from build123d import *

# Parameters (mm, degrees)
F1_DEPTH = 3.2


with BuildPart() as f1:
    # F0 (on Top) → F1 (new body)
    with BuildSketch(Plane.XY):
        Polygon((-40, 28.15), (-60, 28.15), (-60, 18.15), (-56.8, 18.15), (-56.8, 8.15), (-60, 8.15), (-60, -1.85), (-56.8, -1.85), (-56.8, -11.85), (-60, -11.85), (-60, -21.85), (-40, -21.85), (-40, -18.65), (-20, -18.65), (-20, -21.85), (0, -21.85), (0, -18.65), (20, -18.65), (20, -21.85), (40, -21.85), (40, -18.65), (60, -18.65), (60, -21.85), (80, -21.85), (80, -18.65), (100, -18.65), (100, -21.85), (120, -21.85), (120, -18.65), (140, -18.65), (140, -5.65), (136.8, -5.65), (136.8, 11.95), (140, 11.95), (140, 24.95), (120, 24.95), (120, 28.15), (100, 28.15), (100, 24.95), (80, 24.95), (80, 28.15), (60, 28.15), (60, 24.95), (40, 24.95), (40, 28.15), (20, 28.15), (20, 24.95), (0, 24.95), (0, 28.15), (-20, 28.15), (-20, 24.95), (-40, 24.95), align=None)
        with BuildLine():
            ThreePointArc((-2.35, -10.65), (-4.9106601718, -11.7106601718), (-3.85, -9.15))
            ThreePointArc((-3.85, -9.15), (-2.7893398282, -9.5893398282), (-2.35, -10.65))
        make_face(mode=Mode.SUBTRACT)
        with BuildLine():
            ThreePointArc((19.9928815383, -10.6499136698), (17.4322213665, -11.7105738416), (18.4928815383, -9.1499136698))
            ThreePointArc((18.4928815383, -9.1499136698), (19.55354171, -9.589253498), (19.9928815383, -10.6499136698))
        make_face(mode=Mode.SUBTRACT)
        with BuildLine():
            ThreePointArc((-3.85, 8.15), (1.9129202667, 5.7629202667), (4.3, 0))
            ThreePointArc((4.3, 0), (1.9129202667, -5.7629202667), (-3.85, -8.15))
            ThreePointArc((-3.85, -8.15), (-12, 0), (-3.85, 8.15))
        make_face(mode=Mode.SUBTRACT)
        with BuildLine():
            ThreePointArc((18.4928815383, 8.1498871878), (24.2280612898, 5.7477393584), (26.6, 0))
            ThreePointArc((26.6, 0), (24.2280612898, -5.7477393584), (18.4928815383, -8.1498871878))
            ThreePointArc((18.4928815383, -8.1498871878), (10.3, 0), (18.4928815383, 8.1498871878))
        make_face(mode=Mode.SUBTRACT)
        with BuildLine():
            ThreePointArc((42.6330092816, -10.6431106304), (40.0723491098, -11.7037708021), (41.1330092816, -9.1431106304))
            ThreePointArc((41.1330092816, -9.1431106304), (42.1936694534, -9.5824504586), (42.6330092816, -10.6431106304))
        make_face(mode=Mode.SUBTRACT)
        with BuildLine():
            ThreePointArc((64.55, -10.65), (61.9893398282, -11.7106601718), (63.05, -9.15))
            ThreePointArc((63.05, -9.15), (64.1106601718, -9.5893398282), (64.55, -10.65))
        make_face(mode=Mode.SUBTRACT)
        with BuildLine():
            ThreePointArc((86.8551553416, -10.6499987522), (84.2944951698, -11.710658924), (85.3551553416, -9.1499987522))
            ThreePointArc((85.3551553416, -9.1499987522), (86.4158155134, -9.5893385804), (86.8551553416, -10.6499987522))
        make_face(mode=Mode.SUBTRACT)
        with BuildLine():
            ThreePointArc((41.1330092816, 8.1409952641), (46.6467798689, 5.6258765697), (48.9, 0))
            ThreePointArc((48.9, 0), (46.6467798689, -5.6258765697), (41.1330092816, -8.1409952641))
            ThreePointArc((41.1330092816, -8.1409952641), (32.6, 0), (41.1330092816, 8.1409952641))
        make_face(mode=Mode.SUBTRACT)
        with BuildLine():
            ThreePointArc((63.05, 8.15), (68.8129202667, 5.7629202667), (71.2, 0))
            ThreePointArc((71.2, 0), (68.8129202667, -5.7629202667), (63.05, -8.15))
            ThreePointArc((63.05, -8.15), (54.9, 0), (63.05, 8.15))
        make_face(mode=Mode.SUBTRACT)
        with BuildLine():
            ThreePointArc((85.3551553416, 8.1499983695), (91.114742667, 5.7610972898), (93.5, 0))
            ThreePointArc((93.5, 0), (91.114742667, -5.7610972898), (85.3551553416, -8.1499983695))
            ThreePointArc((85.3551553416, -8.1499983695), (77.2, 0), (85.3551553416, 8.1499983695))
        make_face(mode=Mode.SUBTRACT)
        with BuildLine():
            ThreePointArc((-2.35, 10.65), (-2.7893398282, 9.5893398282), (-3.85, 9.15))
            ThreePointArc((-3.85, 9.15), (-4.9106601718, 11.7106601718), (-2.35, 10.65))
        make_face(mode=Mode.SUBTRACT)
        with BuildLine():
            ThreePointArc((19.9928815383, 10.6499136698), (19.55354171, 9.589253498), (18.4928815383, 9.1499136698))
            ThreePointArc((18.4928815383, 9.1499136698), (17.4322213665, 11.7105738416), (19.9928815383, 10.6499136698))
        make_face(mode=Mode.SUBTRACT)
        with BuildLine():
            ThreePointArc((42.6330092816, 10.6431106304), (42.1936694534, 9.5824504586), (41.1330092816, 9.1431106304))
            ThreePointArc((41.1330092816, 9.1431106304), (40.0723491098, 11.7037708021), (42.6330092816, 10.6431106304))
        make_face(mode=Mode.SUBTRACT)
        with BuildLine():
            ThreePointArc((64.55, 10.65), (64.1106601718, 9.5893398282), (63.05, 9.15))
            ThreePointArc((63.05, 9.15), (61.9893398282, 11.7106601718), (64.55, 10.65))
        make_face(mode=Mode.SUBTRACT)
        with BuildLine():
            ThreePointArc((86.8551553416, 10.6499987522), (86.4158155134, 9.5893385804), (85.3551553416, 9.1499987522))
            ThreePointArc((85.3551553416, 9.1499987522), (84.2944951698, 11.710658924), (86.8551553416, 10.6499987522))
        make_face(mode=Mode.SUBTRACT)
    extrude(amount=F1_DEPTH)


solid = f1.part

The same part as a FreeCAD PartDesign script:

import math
import FreeCAD as App
import Part
import Sketcher
from FreeCAD import Vector


def add_polygon(sketch, points):
    """Adds a closed chain of lines whose ends are joined by coincident constraints."""
    first, n = sketch.GeometryCount, len(points)
    for a, b in zip(points, points[1:] + points[:1]):
        sketch.addGeometry(Part.LineSegment(App.Vector(*a, 0), App.Vector(*b, 0)), False)
    for i in range(n):
        sketch.addConstraint(Sketcher.Constraint("Coincident", first + i, 2, first + (i + 1) % n, 1))

doc = App.newDocument("Part")
body = doc.addObject("PartDesign::Body", "Body")

# Sketch on XY plane
sketch1 = body.newObject("Sketcher::SketchObject", "Sketch")
sketch1.AttachmentSupport = (doc.getObject("XY_Plane"), [""])
sketch1.MapMode = "FlatFace"
add_polygon(sketch1, [(-40, 28.15), (-60, 28.15), (-60, 18.15), (-56.8, 18.15), (-56.8, 8.15), (-60, 8.15), (-60, -1.85), (-56.8, -1.85), (-56.8, -11.85), (-60, -11.85), (-60, -21.85), (-40, -21.85), (-40, -18.65), (-20, -18.65), (-20, -21.85), (0, -21.85), (0, -18.65), (20, -18.65), (20, -21.85), (40, -21.85), (40, -18.65), (60, -18.65), (60, -21.85), (80, -21.85), (80, -18.65), (100, -18.65), (100, -21.85), (120, -21.85), (120, -18.65), (140, -18.65), (140, -5.65), (136.8, -5.65), (136.8, 11.95), (140, 11.95), (140, 24.95), (120, 24.95), (120, 28.15), (100, 28.15), (100, 24.95), (80, 24.95), (80, 28.15), (60, 28.15), (60, 24.95), (40, 24.95), (40, 28.15), (20, 28.15), (20, 24.95), (0, 24.95), (0, 28.15), (-20, 28.15), (-20, 24.95), (-40, 24.95)])  # lines 0-51
sketch1.addGeometry(Part.ArcOfCircle(Part.Circle(Vector(-3.85, -10.65, 0), Vector(0, 0, 1), 1.5), math.radians(0), math.radians(90)), False)  # 52
sketch1.addGeometry(Part.ArcOfCircle(Part.Circle(Vector(-3.85, -10.65, 0), Vector(0, 0, 1), 1.5), math.radians(90), math.radians(360)), False)  # 53
sketch1.addGeometry(Part.ArcOfCircle(Part.Circle(Vector(18.492882, -10.649914, 0), Vector(0, 0, 1), 1.5), math.radians(0), math.radians(90)), False)  # 54
sketch1.addGeometry(Part.ArcOfCircle(Part.Circle(Vector(18.492882, -10.649914, 0), Vector(0, 0, 1), 1.5), math.radians(90), math.radians(360)), False)  # 55
sketch1.addGeometry(Part.ArcOfCircle(Part.Circle(Vector(41.133009, -10.643111, 0), Vector(0, 0, 1), 1.5), math.radians(0), math.radians(90)), False)  # 56
sketch1.addGeometry(Part.ArcOfCircle(Part.Circle(Vector(41.133009, -10.643111, 0), Vector(0, 0, 1), 1.5), math.radians(90), math.radians(360)), False)  # 57
sketch1.addGeometry(Part.ArcOfCircle(Part.Circle(Vector(63.05, -10.65, 0), Vector(0, 0, 1), 1.5), math.radians(0), math.radians(90)), False)  # 58
sketch1.addGeometry(Part.ArcOfCircle(Part.Circle(Vector(63.05, -10.65, 0), Vector(0, 0, 1), 1.5), math.radians(90), math.radians(360)), False)  # 59
sketch1.addGeometry(Part.ArcOfCircle(Part.Circle(Vector(85.355155, -10.649999, 0), Vector(0, 0, 1), 1.5), math.radians(0), math.radians(90)), False)  # 60
sketch1.addGeometry(Part.ArcOfCircle(Part.Circle(Vector(85.355155, -10.649999, 0), Vector(0, 0, 1), 1.5), math.radians(90), math.radians(360)), False)  # 61
sketch1.addGeometry(Part.ArcOfCircle(Part.Circle(Vector(-3.85, 0, 0), Vector(0, 0, 1), 8.15), math.radians(90), math.radians(270)), False)  # 62
sketch1.addGeometry(Part.ArcOfCircle(Part.Circle(Vector(-3.85, 0, 0), Vector(0, 0, 1), 8.15), math.radians(0), math.radians(90)), False)  # 63
sketch1.addGeometry(Part.ArcOfCircle(Part.Circle(Vector(-3.85, 0, 0), Vector(0, 0, 1), 8.15), math.radians(-90), math.radians(0)), False)  # 64
sketch1.addGeometry(Part.ArcOfCircle(Part.Circle(Vector(18.45, 0, 0), Vector(0, 0, 1), 8.15), math.radians(89.698535), math.radians(270.301465)), False)  # 65
sketch1.addGeometry(Part.ArcOfCircle(Part.Circle(Vector(18.45, 0, 0), Vector(0, 0, 1), 8.15), math.radians(0), math.radians(89.698535)), False)  # 66
sketch1.addGeometry(Part.ArcOfCircle(Part.Circle(Vector(18.45, 0, 0), Vector(0, 0, 1), 8.15), math.radians(-89.698535), math.radians(0)), False)  # 67
sketch1.addGeometry(Part.ArcOfCircle(Part.Circle(Vector(-3.85, 10.65, 0), Vector(0, 0, 1), 1.5), math.radians(0), math.radians(270)), False)  # 68
sketch1.addGeometry(Part.ArcOfCircle(Part.Circle(Vector(-3.85, 10.65, 0), Vector(0, 0, 1), 1.5), math.radians(-90), math.radians(0)), False)  # 69
sketch1.addGeometry(Part.ArcOfCircle(Part.Circle(Vector(18.492882, 10.649914, 0), Vector(0, 0, 1), 1.5), math.radians(0), math.radians(270)), False)  # 70
sketch1.addGeometry(Part.ArcOfCircle(Part.Circle(Vector(18.492882, 10.649914, 0), Vector(0, 0, 1), 1.5), math.radians(-90), math.radians(0)), False)  # 71
sketch1.addGeometry(Part.ArcOfCircle(Part.Circle(Vector(40.75, 0, 0), Vector(0, 0, 1), 8.15), math.radians(87.306393), math.radians(272.693607)), False)  # 72
sketch1.addGeometry(Part.ArcOfCircle(Part.Circle(Vector(40.75, 0, 0), Vector(0, 0, 1), 8.15), math.radians(0), math.radians(87.306393)), False)  # 73
sketch1.addGeometry(Part.ArcOfCircle(Part.Circle(Vector(40.75, 0, 0), Vector(0, 0, 1), 8.15), math.radians(-87.306393), math.radians(0)), False)  # 74
sketch1.addGeometry(Part.ArcOfCircle(Part.Circle(Vector(63.05, 0, 0), Vector(0, 0, 1), 8.15), math.radians(90), math.radians(270)), False)  # 75
sketch1.addGeometry(Part.ArcOfCircle(Part.Circle(Vector(63.05, 0, 0), Vector(0, 0, 1), 8.15), math.radians(0), math.radians(90)), False)  # 76
sketch1.addGeometry(Part.ArcOfCircle(Part.Circle(Vector(63.05, 0, 0), Vector(0, 0, 1), 8.15), math.radians(-90), math.radians(0)), False)  # 77
sketch1.addGeometry(Part.ArcOfCircle(Part.Circle(Vector(85.35, 0, 0), Vector(0, 0, 1), 8.15), math.radians(89.963757), math.radians(270.036243)), False)  # 78
sketch1.addGeometry(Part.ArcOfCircle(Part.Circle(Vector(85.35, 0, 0), Vector(0, 0, 1), 8.15), math.radians(0), math.radians(89.963757)), False)  # 79
sketch1.addGeometry(Part.ArcOfCircle(Part.Circle(Vector(85.35, 0, 0), Vector(0, 0, 1), 8.15), math.radians(-89.963757), math.radians(0)), False)  # 80
sketch1.addGeometry(Part.ArcOfCircle(Part.Circle(Vector(41.133009, 10.643111, 0), Vector(0, 0, 1), 1.5), math.radians(0), math.radians(270)), False)  # 81
sketch1.addGeometry(Part.ArcOfCircle(Part.Circle(Vector(41.133009, 10.643111, 0), Vector(0, 0, 1), 1.5), math.radians(-90), math.radians(0)), False)  # 82
sketch1.addGeometry(Part.ArcOfCircle(Part.Circle(Vector(63.05, 10.65, 0), Vector(0, 0, 1), 1.5), math.radians(0), math.radians(270)), False)  # 83
sketch1.addGeometry(Part.ArcOfCircle(Part.Circle(Vector(63.05, 10.65, 0), Vector(0, 0, 1), 1.5), math.radians(-90), math.radians(0)), False)  # 84
sketch1.addGeometry(Part.ArcOfCircle(Part.Circle(Vector(85.355155, 10.649999, 0), Vector(0, 0, 1), 1.5), math.radians(0), math.radians(270)), False)  # 85
sketch1.addGeometry(Part.ArcOfCircle(Part.Circle(Vector(85.355155, 10.649999, 0), Vector(0, 0, 1), 1.5), math.radians(-90), math.radians(0)), False)  # 86
sketch1.addConstraint(Sketcher.Constraint("Tangent", 52, 1, 53, 2))
sketch1.addConstraint(Sketcher.Constraint("Coincident", 53, 1, 52, 2))
sketch1.addConstraint(Sketcher.Constraint("Tangent", 54, 1, 55, 2))
sketch1.addConstraint(Sketcher.Constraint("Coincident", 55, 1, 54, 2))
sketch1.addConstraint(Sketcher.Constraint("Tangent", 56, 1, 57, 2))
sketch1.addConstraint(Sketcher.Constraint("Coincident", 57, 1, 56, 2))
sketch1.addConstraint(Sketcher.Constraint("Tangent", 58, 1, 59, 2))
sketch1.addConstraint(Sketcher.Constraint("Coincident", 59, 1, 58, 2))
sketch1.addConstraint(Sketcher.Constraint("Tangent", 60, 1, 61, 2))
sketch1.addConstraint(Sketcher.Constraint("Coincident", 61, 1, 60, 2))
sketch1.addConstraint(Sketcher.Constraint("Tangent", 62, 1, 63, 2))
sketch1.addConstraint(Sketcher.Constraint("Tangent", 63, 1, 64, 2))
sketch1.addConstraint(Sketcher.Constraint("Tangent", 64, 1, 62, 2))
sketch1.addConstraint(Sketcher.Constraint("Tangent", 65, 1, 66, 2))
sketch1.addConstraint(Sketcher.Constraint("Tangent", 66, 1, 67, 2))
sketch1.addConstraint(Sketcher.Constraint("Tangent", 67, 1, 65, 2))
sketch1.addConstraint(Sketcher.Constraint("Tangent", 68, 1, 69, 2))
sketch1.addConstraint(Sketcher.Constraint("Coincident", 69, 1, 68, 2))
sketch1.addConstraint(Sketcher.Constraint("Tangent", 70, 1, 71, 2))
sketch1.addConstraint(Sketcher.Constraint("Coincident", 71, 1, 70, 2))
sketch1.addConstraint(Sketcher.Constraint("Tangent", 72, 1, 73, 2))
sketch1.addConstraint(Sketcher.Constraint("Tangent", 73, 1, 74, 2))
sketch1.addConstraint(Sketcher.Constraint("Tangent", 74, 1, 72, 2))
sketch1.addConstraint(Sketcher.Constraint("Tangent", 75, 1, 76, 2))
sketch1.addConstraint(Sketcher.Constraint("Tangent", 76, 1, 77, 2))
sketch1.addConstraint(Sketcher.Constraint("Tangent", 77, 1, 75, 2))
sketch1.addConstraint(Sketcher.Constraint("Tangent", 78, 1, 79, 2))
sketch1.addConstraint(Sketcher.Constraint("Tangent", 79, 1, 80, 2))
sketch1.addConstraint(Sketcher.Constraint("Tangent", 80, 1, 78, 2))
sketch1.addConstraint(Sketcher.Constraint("Tangent", 81, 1, 82, 2))
sketch1.addConstraint(Sketcher.Constraint("Coincident", 82, 1, 81, 2))
sketch1.addConstraint(Sketcher.Constraint("Tangent", 83, 1, 84, 2))
sketch1.addConstraint(Sketcher.Constraint("Coincident", 84, 1, 83, 2))
sketch1.addConstraint(Sketcher.Constraint("Tangent", 85, 1, 86, 2))
sketch1.addConstraint(Sketcher.Constraint("Coincident", 86, 1, 85, 2))
sketch1.addConstraint(Sketcher.Constraint("Horizontal", 0))
sketch1.addConstraint(Sketcher.Constraint("Vertical", 1))
sketch1.addConstraint(Sketcher.Constraint("Horizontal", 2))
sketch1.addConstraint(Sketcher.Constraint("Vertical", 3))
sketch1.addConstraint(Sketcher.Constraint("Horizontal", 4))
sketch1.addConstraint(Sketcher.Constraint("Vertical", 5))
sketch1.addConstraint(Sketcher.Constraint("Horizontal", 6))
sketch1.addConstraint(Sketcher.Constraint("Vertical", 7))
sketch1.addConstraint(Sketcher.Constraint("Horizontal", 8))
sketch1.addConstraint(Sketcher.Constraint("Vertical", 9))
sketch1.addConstraint(Sketcher.Constraint("Horizontal", 10))
sketch1.addConstraint(Sketcher.Constraint("Vertical", 11))
sketch1.addConstraint(Sketcher.Constraint("Horizontal", 12))
sketch1.addConstraint(Sketcher.Constraint("Vertical", 13))
sketch1.addConstraint(Sketcher.Constraint("Horizontal", 14))
sketch1.addConstraint(Sketcher.Constraint("Vertical", 15))
sketch1.addConstraint(Sketcher.Constraint("Horizontal", 16))
sketch1.addConstraint(Sketcher.Constraint("Vertical", 17))
sketch1.addConstraint(Sketcher.Constraint("Horizontal", 18))
sketch1.addConstraint(Sketcher.Constraint("Vertical", 19))
sketch1.addConstraint(Sketcher.Constraint("Horizontal", 20))
sketch1.addConstraint(Sketcher.Constraint("Vertical", 21))
sketch1.addConstraint(Sketcher.Constraint("Horizontal", 22))
sketch1.addConstraint(Sketcher.Constraint("Vertical", 23))
sketch1.addConstraint(Sketcher.Constraint("Horizontal", 24))
sketch1.addConstraint(Sketcher.Constraint("Vertical", 25))
sketch1.addConstraint(Sketcher.Constraint("Horizontal", 26))
sketch1.addConstraint(Sketcher.Constraint("Vertical", 27))
sketch1.addConstraint(Sketcher.Constraint("Horizontal", 28))
sketch1.addConstraint(Sketcher.Constraint("Vertical", 29))
sketch1.addConstraint(Sketcher.Constraint("Horizontal", 30))
sketch1.addConstraint(Sketcher.Constraint("Vertical", 31))
sketch1.addConstraint(Sketcher.Constraint("Horizontal", 32))
sketch1.addConstraint(Sketcher.Constraint("Vertical", 33))
sketch1.addConstraint(Sketcher.Constraint("Horizontal", 34))
sketch1.addConstraint(Sketcher.Constraint("Vertical", 35))
sketch1.addConstraint(Sketcher.Constraint("Horizontal", 36))
sketch1.addConstraint(Sketcher.Constraint("Vertical", 37))
sketch1.addConstraint(Sketcher.Constraint("Horizontal", 38))
sketch1.addConstraint(Sketcher.Constraint("Vertical", 39))
sketch1.addConstraint(Sketcher.Constraint("Horizontal", 40))
sketch1.addConstraint(Sketcher.Constraint("Vertical", 41))
sketch1.addConstraint(Sketcher.Constraint("Horizontal", 42))
sketch1.addConstraint(Sketcher.Constraint("Vertical", 43))
sketch1.addConstraint(Sketcher.Constraint("Horizontal", 44))
sketch1.addConstraint(Sketcher.Constraint("Vertical", 45))
sketch1.addConstraint(Sketcher.Constraint("Horizontal", 46))
sketch1.addConstraint(Sketcher.Constraint("Vertical", 47))
sketch1.addConstraint(Sketcher.Constraint("Horizontal", 48))
sketch1.addConstraint(Sketcher.Constraint("Vertical", 49))
sketch1.addConstraint(Sketcher.Constraint("Horizontal", 50))
sketch1.addConstraint(Sketcher.Constraint("Vertical", 51))
sketch1.addConstraint(Sketcher.Constraint("Equal", 53, 54))
sketch1.addConstraint(Sketcher.Constraint("Equal", 55, 56))
sketch1.addConstraint(Sketcher.Constraint("Equal", 57, 58))
sketch1.addConstraint(Sketcher.Constraint("Equal", 59, 60))
sketch1.addConstraint(Sketcher.Constraint("Equal", 64, 65))
sketch1.addConstraint(Sketcher.Constraint("Equal", 61, 68))
sketch1.addConstraint(Sketcher.Constraint("Equal", 69, 70))
sketch1.addConstraint(Sketcher.Constraint("Equal", 67, 72))
sketch1.addConstraint(Sketcher.Constraint("Equal", 74, 75))
sketch1.addConstraint(Sketcher.Constraint("Equal", 77, 78))
sketch1.addConstraint(Sketcher.Constraint("Equal", 71, 81))
sketch1.addConstraint(Sketcher.Constraint("Equal", 82, 83))
sketch1.addConstraint(Sketcher.Constraint("Equal", 84, 85))
sketch1.addConstraint(Sketcher.Constraint("Symmetric", 12, 2, 16, 2, -2))
sketch1.addConstraint(Sketcher.Constraint("Symmetric", 10, 2, 18, 2, -2))
sketch1.addConstraint(Sketcher.Constraint("Symmetric", 9, 2, 21, 2, -2))
sketch1.addConstraint(Sketcher.Constraint("Symmetric", 0, 2, 40, 2, -2))
sketch1.addConstraint(Sketcher.Constraint("Symmetric", 44, 2, 48, 2, -2))
sketch1.addConstraint(Sketcher.Constraint("Symmetric", 42, 2, 50, 2, -2))
sketch1.addConstraint(Sketcher.Constraint("Symmetric", 52, 3, 68, 3, -1))
sketch1.addConstraint(Sketcher.Constraint("Symmetric", 54, 3, 70, 3, -1))
sketch1.addConstraint(Sketcher.Constraint("Symmetric", 56, 3, 81, 3, -1))
sketch1.addConstraint(Sketcher.Constraint("Symmetric", 58, 3, 83, 3, -1))
sketch1.addConstraint(Sketcher.Constraint("Symmetric", 60, 3, 85, 3, -1))
sketch1.addConstraint(Sketcher.Constraint("Symmetric", 62, 1, 64, 1, -1))
sketch1.addConstraint(Sketcher.Constraint("Symmetric", 65, 1, 67, 1, -1))
sketch1.addConstraint(Sketcher.Constraint("Symmetric", 72, 1, 74, 1, -1))
sketch1.addConstraint(Sketcher.Constraint("Symmetric", 75, 1, 77, 1, -1))
sketch1.addConstraint(Sketcher.Constraint("Symmetric", 78, 1, 80, 1, -1))
sketch1.addConstraint(Sketcher.Constraint("PointOnObject", 14, 2, -2))
sketch1.addConstraint(Sketcher.Constraint("PointOnObject", 46, 2, -2))
sketch1.addConstraint(Sketcher.Constraint("PointOnObject", 63, 1, -1))
sketch1.addConstraint(Sketcher.Constraint("PointOnObject", 66, 1, -1))
sketch1.addConstraint(Sketcher.Constraint("PointOnObject", 73, 1, -1))
sketch1.addConstraint(Sketcher.Constraint("PointOnObject", 76, 1, -1))
sketch1.addConstraint(Sketcher.Constraint("PointOnObject", 79, 1, -1))
sketch1.addConstraint(Sketcher.Constraint("Horizontal", 53, 3, 58, 3))
sketch1.addConstraint(Sketcher.Constraint("Horizontal", 59, 3, 60, 3))
sketch1.addConstraint(Sketcher.Constraint("Horizontal", 10, 2, 13, 2))
sketch1.addConstraint(Sketcher.Constraint("Horizontal", 16, 2, 19, 2))
sketch1.addConstraint(Sketcher.Constraint("Horizontal", 20, 2, 23, 2))
sketch1.addConstraint(Sketcher.Constraint("Horizontal", 22, 2, 25, 2))
sketch1.addConstraint(Sketcher.Constraint("Horizontal", 24, 2, 27, 2))
sketch1.addConstraint(Sketcher.Constraint("Horizontal", 0, 2, 35, 2))
sketch1.addConstraint(Sketcher.Constraint("Horizontal", 34, 2, 37, 2))
sketch1.addConstraint(Sketcher.Constraint("Horizontal", 38, 2, 41, 2))
sketch1.addConstraint(Sketcher.Constraint("Horizontal", 40, 2, 43, 2))
sketch1.addConstraint(Sketcher.Constraint("Horizontal", 42, 2, 45, 2))
sketch1.addConstraint(Sketcher.Constraint("Horizontal", 61, 3, 52, 1))
sketch1.addConstraint(Sketcher.Constraint("Horizontal", 55, 3, 54, 1))
sketch1.addConstraint(Sketcher.Constraint("Horizontal", 57, 3, 56, 1))
sketch1.addConstraint(Sketcher.Constraint("Horizontal", 52, 1, 58, 1))
sketch1.addConstraint(Sketcher.Constraint("Horizontal", 58, 1, 60, 1))
sketch1.addConstraint(Sketcher.Constraint("Horizontal", 4, 2, 62, 1))
sketch1.addConstraint(Sketcher.Constraint("Horizontal", 86, 3, 68, 1))
sketch1.addConstraint(Sketcher.Constraint("Horizontal", 71, 3, 70, 1))
sketch1.addConstraint(Sketcher.Constraint("Horizontal", 82, 3, 81, 1))
sketch1.addConstraint(Sketcher.Constraint("Horizontal", 68, 1, 83, 1))
sketch1.addConstraint(Sketcher.Constraint("Horizontal", 83, 1, 85, 1))
sketch1.addConstraint(Sketcher.Constraint("Vertical", 53, 3, 62, 3))
sketch1.addConstraint(Sketcher.Constraint("Vertical", 59, 3, 75, 3))
sketch1.addConstraint(Sketcher.Constraint("Vertical", 1, 2, 4, 2))
sketch1.addConstraint(Sketcher.Constraint("Vertical", 3, 2, 6, 2))
sketch1.addConstraint(Sketcher.Constraint("Vertical", 5, 2, 8, 2))
sketch1.addConstraint(Sketcher.Constraint("Vertical", 29, 2, 32, 2))
sketch1.addConstraint(Sketcher.Constraint("Vertical", 27, 2, 34, 2))
sketch1.addConstraint(Sketcher.Constraint("Vertical", 25, 2, 36, 2))
sketch1.addConstraint(Sketcher.Constraint("Vertical", 23, 2, 38, 2))
sketch1.addConstraint(Sketcher.Constraint("Vertical", 19, 2, 42, 2))
sketch1.addConstraint(Sketcher.Constraint("Vertical", 17, 2, 44, 2))
sketch1.addConstraint(Sketcher.Constraint("Vertical", 69, 3, 53, 1))
sketch1.addConstraint(Sketcher.Constraint("Vertical", 71, 3, 55, 1))
sketch1.addConstraint(Sketcher.Constraint("Vertical", 82, 3, 57, 1))
sketch1.addConstraint(Sketcher.Constraint("Vertical", 84, 3, 59, 1))
sketch1.addConstraint(Sketcher.Constraint("Vertical", 86, 3, 61, 1))
sketch1.addConstraint(Sketcher.Constraint("Vertical", 53, 1, 62, 1))
sketch1.addConstraint(Sketcher.Constraint("Vertical", 55, 1, 65, 1))
sketch1.addConstraint(Sketcher.Constraint("Vertical", 64, 1, 69, 1))
sketch1.addConstraint(Sketcher.Constraint("Vertical", 67, 1, 71, 1))
sketch1.addConstraint(Sketcher.Constraint("Vertical", 57, 1, 72, 1))
sketch1.addConstraint(Sketcher.Constraint("Vertical", 59, 1, 75, 1))
sketch1.addConstraint(Sketcher.Constraint("Vertical", 61, 1, 78, 1))
sketch1.addConstraint(Sketcher.Constraint("Vertical", 74, 1, 82, 1))
sketch1.addConstraint(Sketcher.Constraint("Vertical", 77, 1, 84, 1))
sketch1.addConstraint(Sketcher.Constraint("Vertical", 80, 1, 86, 1))
sketch1.addConstraint(Sketcher.Constraint("Equal", 10, 12))
sketch1.addConstraint(Sketcher.Constraint("Equal", 12, 14))
sketch1.addConstraint(Sketcher.Constraint("Equal", 20, 22))
sketch1.addConstraint(Sketcher.Constraint("Equal", 22, 24))
sketch1.addConstraint(Sketcher.Constraint("Equal", 24, 26))
sketch1.addConstraint(Sketcher.Constraint("Equal", 26, 28))
sketch1.addConstraint(Sketcher.Constraint("Equal", 8, 30))
sketch1.addConstraint(Sketcher.Constraint("Equal", 1, 3))
sketch1.addConstraint(Sketcher.Constraint("Equal", 3, 5))
sketch1.addConstraint(Sketcher.Constraint("Equal", 5, 7))
sketch1.addConstraint(Sketcher.Constraint("Equal", 7, 9))
sketch1.addConstraint(Sketcher.Constraint("Equal", 32, 11))
sketch1.addConstraint(Sketcher.Constraint("Equal", 29, 33))
sketch1.addConstraint(Sketcher.Constraint("Equal", 27, 35))
sketch1.addConstraint(Sketcher.Constraint("Radius", 52, 1.5))
sketch1.addConstraint(Sketcher.Constraint("DistanceX", 0, 2, 0, 1, 20.0))
sketch1.addConstraint(Sketcher.Constraint("DistanceY", 1, 2, 1, 1, 10.0))
sketch1.addConstraint(Sketcher.Constraint("DistanceY", 29, 1, 29, 2, 13.0))
sketch1.addConstraint(Sketcher.Constraint("Radius", 62, 8.15))
sketch1.addConstraint(Sketcher.Constraint("DistanceX", 2, 1, 2, 2, 3.2))
sketch1.addConstraint(Sketcher.Constraint("DistanceX", -1, 1, 63, 1, 4.3))
sketch1.addConstraint(Sketcher.Constraint("DistanceX", -1, 1, 66, 1, 26.6))
sketch1.addConstraint(Sketcher.Constraint("DistanceX", -1, 1, 73, 1, 48.9))
sketch1.addConstraint(Sketcher.Constraint("DistanceX", -1, 1, 76, 1, 71.2))
sketch1.addConstraint(Sketcher.Constraint("DistanceX", -1, 1, 79, 1, 93.5))
sketch1.addConstraint(Sketcher.Constraint("DistanceY", 52, 3, -1, 1, 10.65))
sketch1.addConstraint(Sketcher.Constraint("DistanceX", -1, 1, 54, 3, 18.492882))
sketch1.addConstraint(Sketcher.Constraint("DistanceX", -1, 1, 56, 3, 41.133009))
sketch1.addConstraint(Sketcher.Constraint("DistanceY", 56, 3, -1, 1, 10.643111))
sketch1.addConstraint(Sketcher.Constraint("DistanceY", 54, 3, -1, 1, 10.649914))
sketch1.addConstraint(Sketcher.Constraint("DistanceX", -1, 1, 60, 3, 85.355155))
pad1 = body.newObject("PartDesign::Pad", "Pad")
pad1.Profile = sketch1
pad1.Length = 3.2

doc.recompute()
